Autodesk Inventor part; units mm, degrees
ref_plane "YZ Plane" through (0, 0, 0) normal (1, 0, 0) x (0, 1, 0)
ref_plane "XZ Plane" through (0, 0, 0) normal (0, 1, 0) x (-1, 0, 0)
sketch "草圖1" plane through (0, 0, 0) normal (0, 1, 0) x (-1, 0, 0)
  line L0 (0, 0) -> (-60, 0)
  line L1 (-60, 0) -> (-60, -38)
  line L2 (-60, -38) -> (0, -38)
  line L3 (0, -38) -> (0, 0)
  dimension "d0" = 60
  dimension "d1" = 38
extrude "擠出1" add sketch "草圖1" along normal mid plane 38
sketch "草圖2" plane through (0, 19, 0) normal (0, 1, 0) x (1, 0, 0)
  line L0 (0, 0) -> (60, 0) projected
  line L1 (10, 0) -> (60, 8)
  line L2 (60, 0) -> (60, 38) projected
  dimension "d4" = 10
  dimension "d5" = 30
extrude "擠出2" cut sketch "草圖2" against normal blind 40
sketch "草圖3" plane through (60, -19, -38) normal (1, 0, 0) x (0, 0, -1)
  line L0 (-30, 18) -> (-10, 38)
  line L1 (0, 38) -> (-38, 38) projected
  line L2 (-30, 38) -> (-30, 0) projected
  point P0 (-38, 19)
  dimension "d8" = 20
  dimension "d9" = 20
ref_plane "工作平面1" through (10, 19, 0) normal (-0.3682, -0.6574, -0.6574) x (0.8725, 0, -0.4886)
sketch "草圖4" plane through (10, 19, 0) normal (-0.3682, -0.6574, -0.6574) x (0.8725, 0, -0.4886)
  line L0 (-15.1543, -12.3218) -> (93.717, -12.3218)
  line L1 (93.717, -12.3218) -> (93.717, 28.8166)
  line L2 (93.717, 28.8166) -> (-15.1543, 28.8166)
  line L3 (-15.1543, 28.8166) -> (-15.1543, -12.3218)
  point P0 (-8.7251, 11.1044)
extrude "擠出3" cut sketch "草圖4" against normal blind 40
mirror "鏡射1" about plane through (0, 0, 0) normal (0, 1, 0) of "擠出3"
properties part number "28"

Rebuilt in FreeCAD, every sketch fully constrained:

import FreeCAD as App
import Part
import Sketcher

V = App.Vector
Q = App.Units.Quantity

doc = App.newDocument("Part")
body = doc.addObject("PartDesign::Body", "Body")

sketch1 = body.newObject("Sketcher::SketchObject", "Sketch")
sketch1.AttachmentSupport = (doc.getObject("XZ_Plane"), [""])
sketch1.MapMode = "FlatFace"
sketch1.addGeometry([
    Part.LineSegment(V(0, -38, 0), V(0, 0, 0)),
    Part.LineSegment(V(0, 0, 0), V(60, 0, 0)),
    Part.LineSegment(V(60, 0, 0), V(60, -38, 0)),
    Part.LineSegment(V(60, -38, 0), V(0, -38, 0)),
], False)
sketch1.addConstraint([
    Sketcher.Constraint("Coincident", 0, 2, 1, 1),
    Sketcher.Constraint("Coincident", 1, 2, 2, 1),
    Sketcher.Constraint("Coincident", 2, 2, 3, 1),
    Sketcher.Constraint("Coincident", 3, 2, 0, 1),
    Sketcher.Constraint("Vertical", 0),
    Sketcher.Constraint("Horizontal", 1),
    Sketcher.Constraint("Vertical", 2),
    Sketcher.Constraint("Horizontal", 3),
    Sketcher.Constraint("Coincident", 0, 2, -1, 1),
    Sketcher.Constraint("DistanceX", 1, 1, 1, 2, Q("60 mm")),
    Sketcher.Constraint("DistanceY", 0, 1, 0, 2, Q("38 mm")),
])
pad1 = body.newObject("PartDesign::Pad", "Pad")
pad1.Profile = sketch1
pad1.Length = 38
pad1.Midplane = True

sketch2 = body.newObject("Sketcher::SketchObject", "Sketch001")
sketch2.AttachmentSupport = (doc.getObject("XZ_Plane"), [""])
sketch2.MapMode = "FlatFace"
sketch2.AttachmentOffset = App.Placement(V(0, 0, -19), App.Rotation())
sketch2.addGeometry([
    Part.LineSegment(V(60, -8, 0), V(10, 0, 0)),
    Part.LineSegment(V(10, 0, 0), V(60, 0, 0)),
    Part.LineSegment(V(60, 0, 0), V(60, -8, 0)),
], False)
sketch2.addConstraint([
    Sketcher.Constraint("Coincident", 0, 2, 1, 1),
    Sketcher.Constraint("Coincident", 1, 2, 2, 1),
    Sketcher.Constraint("Coincident", 2, 2, 0, 1),
    Sketcher.Constraint("Horizontal", 1),
    Sketcher.Constraint("Vertical", 2),
    Sketcher.Constraint("PointOnObject", 0, 2, -1),
    Sketcher.Constraint("DistanceX", -1, 1, 0, 2, Q("10 mm")),
    Sketcher.Constraint("DistanceX", 1, 1, 1, 2, Q("50 mm")),
    Sketcher.Constraint("DistanceY", 2, 2, 2, 1, Q("8 mm")),
])
pocket1 = body.newObject("PartDesign::Pocket", "Pocket")
pocket1.Profile = sketch2
pocket1.Length = 40
pocket1.Reversed = True

sketch3 = body.newObject("Sketcher::SketchObject", "Sketch002")
sketch3.Placement = App.Placement(V(10, 19, 0), App.Rotation(V(0.872488025, -0.000032123, -0.488635493), V(0.321220583, -0.753519071, 0.573608182), V(-0.368214589, -0.657426048, -0.657426048), "ZXY"))
sketch3.addGeometry([
    Part.LineSegment(V(-15.1543, 28.8166, 0), V(-15.1543, -12.3218, 0)),
    Part.LineSegment(V(-15.1543, -12.3218, 0), V(93.717, -12.3218, 0)),
    Part.LineSegment(V(93.717, -12.3218, 0), V(93.717, 28.8166, 0)),
    Part.LineSegment(V(93.717, 28.8166, 0), V(-15.1543, 28.8166, 0)),
], False)
sketch3.addConstraint([
    Sketcher.Constraint("Coincident", 0, 2, 1, 1),
    Sketcher.Constraint("Coincident", 1, 2, 2, 1),
    Sketcher.Constraint("Coincident", 2, 2, 3, 1),
    Sketcher.Constraint("Coincident", 3, 2, 0, 1),
    Sketcher.Constraint("Vertical", 0),
    Sketcher.Constraint("Horizontal", 1),
    Sketcher.Constraint("Vertical", 2),
    Sketcher.Constraint("Horizontal", 3),
    Sketcher.Constraint("DistanceX", 1, 1, 1, 2, Q("108.8713 mm")),
    Sketcher.Constraint("DistanceY", 0, 2, 0, 1, Q("41.1384 mm")),
    Sketcher.Constraint("DistanceX", -1, 1, 1, 2, Q("93.717 mm")),
    Sketcher.Constraint("DistanceY", 0, 2, -1, 1, Q("12.3218 mm")),
])
pocket2 = body.newObject("PartDesign::Pocket", "Pocket001")
pocket2.Profile = sketch3
pocket2.Length = 40
doc.recompute()

mirrored = body.newObject("PartDesign::Mirrored", "Mirrored")
mirrored.Originals = [pocket2]
mirrored.MirrorPlane = (doc.getObject("XZ_Plane"), [""])
body.Tip = mirrored

doc.recompute()
